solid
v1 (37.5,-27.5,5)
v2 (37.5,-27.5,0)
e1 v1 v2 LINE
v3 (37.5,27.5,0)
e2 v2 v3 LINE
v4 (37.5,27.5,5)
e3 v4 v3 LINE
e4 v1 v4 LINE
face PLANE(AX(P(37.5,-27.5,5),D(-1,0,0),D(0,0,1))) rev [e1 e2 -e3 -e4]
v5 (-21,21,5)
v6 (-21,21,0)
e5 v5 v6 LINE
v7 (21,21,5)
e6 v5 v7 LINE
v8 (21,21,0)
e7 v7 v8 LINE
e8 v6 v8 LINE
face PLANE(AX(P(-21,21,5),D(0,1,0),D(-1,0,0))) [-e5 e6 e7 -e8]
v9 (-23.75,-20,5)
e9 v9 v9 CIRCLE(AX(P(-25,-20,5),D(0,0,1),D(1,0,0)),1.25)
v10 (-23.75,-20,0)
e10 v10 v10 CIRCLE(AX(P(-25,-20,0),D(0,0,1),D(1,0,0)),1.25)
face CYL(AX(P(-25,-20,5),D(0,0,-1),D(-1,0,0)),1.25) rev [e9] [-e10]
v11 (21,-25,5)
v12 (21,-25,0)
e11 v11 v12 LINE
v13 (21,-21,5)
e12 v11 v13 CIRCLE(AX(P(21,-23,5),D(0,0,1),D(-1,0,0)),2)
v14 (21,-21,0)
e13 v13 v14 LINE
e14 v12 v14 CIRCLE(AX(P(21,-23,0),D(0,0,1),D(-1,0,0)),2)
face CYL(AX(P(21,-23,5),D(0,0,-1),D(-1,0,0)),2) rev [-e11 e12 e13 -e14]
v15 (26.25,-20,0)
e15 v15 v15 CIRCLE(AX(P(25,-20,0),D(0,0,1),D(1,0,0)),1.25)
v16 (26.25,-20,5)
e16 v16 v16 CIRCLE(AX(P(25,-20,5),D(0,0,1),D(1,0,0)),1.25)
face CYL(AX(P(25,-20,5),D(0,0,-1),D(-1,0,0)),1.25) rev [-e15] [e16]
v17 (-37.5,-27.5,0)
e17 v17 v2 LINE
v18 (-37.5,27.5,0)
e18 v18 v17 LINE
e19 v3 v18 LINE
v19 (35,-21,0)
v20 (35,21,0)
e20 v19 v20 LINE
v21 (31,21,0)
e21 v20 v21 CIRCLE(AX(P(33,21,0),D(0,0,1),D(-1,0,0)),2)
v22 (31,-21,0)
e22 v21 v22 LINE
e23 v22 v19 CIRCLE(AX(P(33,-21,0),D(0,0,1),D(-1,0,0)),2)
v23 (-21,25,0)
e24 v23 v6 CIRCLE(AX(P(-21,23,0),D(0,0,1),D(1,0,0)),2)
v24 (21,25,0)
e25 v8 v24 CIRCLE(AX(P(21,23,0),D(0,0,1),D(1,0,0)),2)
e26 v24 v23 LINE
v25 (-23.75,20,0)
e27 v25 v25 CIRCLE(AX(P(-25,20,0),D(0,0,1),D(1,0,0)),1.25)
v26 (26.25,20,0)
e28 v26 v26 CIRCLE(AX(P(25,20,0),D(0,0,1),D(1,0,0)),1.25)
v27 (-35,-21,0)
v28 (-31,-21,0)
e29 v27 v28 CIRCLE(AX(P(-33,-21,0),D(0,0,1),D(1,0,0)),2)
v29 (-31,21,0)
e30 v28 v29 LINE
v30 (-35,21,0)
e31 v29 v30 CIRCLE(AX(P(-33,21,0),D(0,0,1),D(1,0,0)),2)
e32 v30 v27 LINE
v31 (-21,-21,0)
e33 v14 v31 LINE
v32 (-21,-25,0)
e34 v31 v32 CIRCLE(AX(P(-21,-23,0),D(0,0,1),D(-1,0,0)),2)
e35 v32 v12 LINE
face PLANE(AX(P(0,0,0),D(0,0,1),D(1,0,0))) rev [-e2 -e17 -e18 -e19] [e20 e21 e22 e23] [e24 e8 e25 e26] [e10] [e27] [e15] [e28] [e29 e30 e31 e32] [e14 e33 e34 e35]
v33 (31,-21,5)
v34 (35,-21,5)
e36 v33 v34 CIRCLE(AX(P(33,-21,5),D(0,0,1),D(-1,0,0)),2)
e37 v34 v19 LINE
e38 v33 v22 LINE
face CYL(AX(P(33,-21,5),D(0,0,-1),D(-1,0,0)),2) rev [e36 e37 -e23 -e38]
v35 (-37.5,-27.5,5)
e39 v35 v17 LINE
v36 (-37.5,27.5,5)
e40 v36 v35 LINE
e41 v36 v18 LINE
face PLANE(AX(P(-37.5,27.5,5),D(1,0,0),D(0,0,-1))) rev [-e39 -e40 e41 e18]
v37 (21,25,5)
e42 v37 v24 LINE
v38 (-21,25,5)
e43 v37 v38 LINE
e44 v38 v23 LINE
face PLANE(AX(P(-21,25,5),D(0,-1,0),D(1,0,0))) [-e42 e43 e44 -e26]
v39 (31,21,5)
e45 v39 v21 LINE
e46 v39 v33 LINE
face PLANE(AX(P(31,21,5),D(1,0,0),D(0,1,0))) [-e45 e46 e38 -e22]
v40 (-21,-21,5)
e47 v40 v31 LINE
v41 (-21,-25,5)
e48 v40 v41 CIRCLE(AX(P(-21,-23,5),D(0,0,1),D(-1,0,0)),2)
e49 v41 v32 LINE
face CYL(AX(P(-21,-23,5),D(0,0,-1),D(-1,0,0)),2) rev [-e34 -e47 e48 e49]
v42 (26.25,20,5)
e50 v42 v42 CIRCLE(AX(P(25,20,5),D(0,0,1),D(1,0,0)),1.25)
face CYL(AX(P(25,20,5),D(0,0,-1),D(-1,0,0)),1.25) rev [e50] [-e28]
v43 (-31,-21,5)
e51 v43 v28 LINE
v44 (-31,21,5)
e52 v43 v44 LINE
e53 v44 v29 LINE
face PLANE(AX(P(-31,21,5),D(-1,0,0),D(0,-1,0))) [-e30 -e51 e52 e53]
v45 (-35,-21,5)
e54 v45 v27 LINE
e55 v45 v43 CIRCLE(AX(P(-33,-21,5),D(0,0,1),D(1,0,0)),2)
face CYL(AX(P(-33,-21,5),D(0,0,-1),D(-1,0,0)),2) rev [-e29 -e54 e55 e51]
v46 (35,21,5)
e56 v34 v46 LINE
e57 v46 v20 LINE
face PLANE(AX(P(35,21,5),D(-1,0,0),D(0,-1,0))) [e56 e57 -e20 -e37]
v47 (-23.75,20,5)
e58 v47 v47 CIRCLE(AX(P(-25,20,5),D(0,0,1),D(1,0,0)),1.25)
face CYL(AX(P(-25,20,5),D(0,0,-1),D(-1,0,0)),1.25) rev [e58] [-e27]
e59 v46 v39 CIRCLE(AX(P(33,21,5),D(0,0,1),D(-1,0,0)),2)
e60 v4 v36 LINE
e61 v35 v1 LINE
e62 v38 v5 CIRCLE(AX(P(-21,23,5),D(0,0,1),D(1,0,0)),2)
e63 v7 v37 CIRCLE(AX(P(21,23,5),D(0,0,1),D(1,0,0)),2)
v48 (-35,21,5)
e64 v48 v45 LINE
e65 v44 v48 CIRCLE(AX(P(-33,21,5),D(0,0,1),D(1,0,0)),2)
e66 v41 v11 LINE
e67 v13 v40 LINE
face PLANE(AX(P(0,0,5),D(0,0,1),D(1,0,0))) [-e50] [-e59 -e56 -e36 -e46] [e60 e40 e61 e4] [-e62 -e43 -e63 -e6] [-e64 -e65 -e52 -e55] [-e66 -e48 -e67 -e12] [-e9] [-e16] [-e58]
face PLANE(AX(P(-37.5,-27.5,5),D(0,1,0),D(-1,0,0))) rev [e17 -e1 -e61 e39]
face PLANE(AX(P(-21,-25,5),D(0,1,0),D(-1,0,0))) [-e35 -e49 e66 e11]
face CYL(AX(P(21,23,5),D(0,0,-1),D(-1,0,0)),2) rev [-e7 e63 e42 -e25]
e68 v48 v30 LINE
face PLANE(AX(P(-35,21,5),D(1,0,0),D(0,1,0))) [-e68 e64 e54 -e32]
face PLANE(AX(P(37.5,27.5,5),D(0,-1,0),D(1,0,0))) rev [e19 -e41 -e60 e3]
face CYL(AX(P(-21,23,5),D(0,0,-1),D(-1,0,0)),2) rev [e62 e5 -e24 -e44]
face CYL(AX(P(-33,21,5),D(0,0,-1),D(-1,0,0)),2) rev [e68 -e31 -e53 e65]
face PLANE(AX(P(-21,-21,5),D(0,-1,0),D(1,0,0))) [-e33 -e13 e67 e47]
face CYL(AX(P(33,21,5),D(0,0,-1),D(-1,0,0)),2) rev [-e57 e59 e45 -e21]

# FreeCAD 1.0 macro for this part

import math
import FreeCAD as App
import Part
import Sketcher
from FreeCAD import Vector

doc = App.newDocument("Part")
body = doc.addObject("PartDesign::Body", "Body")

# Sketch on XY plane
sketch1 = body.newObject("Sketcher::SketchObject", "Sketch")
sketch1.AttachmentSupport = (doc.getObject("XY_Plane"), [""])
sketch1.MapMode = "FlatFace"
sketch1.addGeometry([
    Part.LineSegment(Vector(-37.5, 27.5, 0), Vector(-37.5, -27.5, 0)),  # 0
    Part.LineSegment(Vector(-37.5, -27.5, 0), Vector(37.5, -27.5, 0)),  # 1
    Part.LineSegment(Vector(37.5, -27.5, 0), Vector(37.5, 27.5, 0)),  # 2
    Part.LineSegment(Vector(37.5, 27.5, 0), Vector(-37.5, 27.5, 0)),  # 3
    Part.Circle(Vector(-25, -20, 0), Vector(0, 0, 1), 1.2),  # 4
    Part.LineSegment(Vector(21, -25, 0), Vector(-21, -25, 0)),  # 5
    Part.ArcOfCircle(Part.Circle(Vector(-21, -23, 0), Vector(0, 0, 1), 2), math.radians(90), math.radians(270)),  # 6
    Part.LineSegment(Vector(-21, -21, 0), Vector(21, -21, 0)),  # 7
    Part.ArcOfCircle(Part.Circle(Vector(21, -23, 0), Vector(0, 0, 1), 2), math.radians(-90), math.radians(90)),  # 8
    Part.Circle(Vector(25, -20, 0), Vector(0, 0, 1), 1.2),  # 9
    Part.ArcOfCircle(Part.Circle(Vector(-33, 21, 0), Vector(0, 0, 1), 2), math.radians(0), math.radians(180)),  # 10
    Part.LineSegment(Vector(-31, 21, 0), Vector(-31, -21, 0)),  # 11
    Part.ArcOfCircle(Part.Circle(Vector(-33, -21, 0), Vector(0, 0, 1), 2), math.radians(180), math.radians(360)),  # 12
    Part.LineSegment(Vector(-35, -21, 0), Vector(-35, 21, 0)),  # 13
    Part.Circle(Vector(-25, 20, 0), Vector(0, 0, 1), 1.2),  # 14
    Part.LineSegment(Vector(31, -21, 0), Vector(31, 21, 0)),  # 15
    Part.ArcOfCircle(Part.Circle(Vector(33, 21, 0), Vector(0, 0, 1), 2), math.radians(0), math.radians(180)),  # 16
    Part.LineSegment(Vector(35, 21, 0), Vector(35, -21, 0)),  # 17
    Part.ArcOfCircle(Part.Circle(Vector(33, -21, 0), Vector(0, 0, 1), 2), math.radians(180), math.radians(360)),  # 18
    Part.ArcOfCircle(Part.Circle(Vector(-21, 23, 0), Vector(0, 0, 1), 2), math.radians(90), math.radians(270)),  # 19
    Part.LineSegment(Vector(-21, 25, 0), Vector(21, 25, 0)),  # 20
    Part.ArcOfCircle(Part.Circle(Vector(21, 23, 0), Vector(0, 0, 1), 2), math.radians(-90), math.radians(90)),  # 21
    Part.LineSegment(Vector(21, 21, 0), Vector(-21, 21, 0)),  # 22
    Part.Circle(Vector(25, 20, 0), Vector(0, 0, 1), 1.2),  # 23
], False)
sketch1.addConstraint([
    Sketcher.Constraint("Coincident", 0, 2, 1, 1),
    Sketcher.Constraint("Coincident", 1, 2, 2, 1),
    Sketcher.Constraint("Coincident", 2, 2, 3, 1),
    Sketcher.Constraint("Coincident", 3, 2, 0, 1),
    Sketcher.Constraint("Tangent", 5, 2, 6, 2),
    Sketcher.Constraint("Tangent", 6, 1, 7, 1),
    Sketcher.Constraint("Tangent", 7, 2, 8, 2),
    Sketcher.Constraint("Tangent", 8, 1, 5, 1),
    Sketcher.Constraint("Tangent", 10, 1, 11, 1),
    Sketcher.Constraint("Tangent", 11, 2, 12, 2),
    Sketcher.Constraint("Tangent", 12, 1, 13, 1),
    Sketcher.Constraint("Tangent", 13, 2, 10, 2),
    Sketcher.Constraint("Tangent", 15, 2, 16, 2),
    Sketcher.Constraint("Tangent", 16, 1, 17, 1),
    Sketcher.Constraint("Tangent", 17, 2, 18, 2),
    Sketcher.Constraint("Tangent", 18, 1, 15, 1),
    Sketcher.Constraint("Tangent", 19, 1, 20, 1),
    Sketcher.Constraint("Tangent", 20, 2, 21, 2),
    Sketcher.Constraint("Tangent", 21, 1, 22, 1),
    Sketcher.Constraint("Tangent", 22, 2, 19, 2),
    Sketcher.Constraint("Vertical", 0),
    Sketcher.Constraint("Horizontal", 1),
    Sketcher.Constraint("Vertical", 2),
    Sketcher.Constraint("Horizontal", 3),
    Sketcher.Constraint("Horizontal", 5),
    Sketcher.Constraint("Horizontal", 7),
    Sketcher.Constraint("Vertical", 11),
    Sketcher.Constraint("Vertical", 13),
    Sketcher.Constraint("Vertical", 15),
    Sketcher.Constraint("Vertical", 17),
    Sketcher.Constraint("Horizontal", 20),
    Sketcher.Constraint("Horizontal", 22),
    Sketcher.Constraint("Equal", 4, 9),
    Sketcher.Constraint("Equal", 8, 10),
    Sketcher.Constraint("Equal", 9, 14),
    Sketcher.Constraint("Equal", 12, 16),
    Sketcher.Constraint("Equal", 18, 19),
    Sketcher.Constraint("Equal", 14, 23),
    Sketcher.Constraint("Symmetric", 9, 3, 14, 3, -1, 1),
    Sketcher.Constraint("Symmetric", 12, 3, 16, 3, -1, 1),
    Sketcher.Constraint("Symmetric", 8, 3, 19, 3, -1, 1),
    Sketcher.Constraint("Symmetric", 4, 3, 23, 3, -1, 1),
    Sketcher.Constraint("Symmetric", 0, 2, 2, 2, -1, 1),
    Sketcher.Constraint("Symmetric", 4, 3, 9, 3, -2),
    Sketcher.Constraint("Horizontal", 10, 3, 16, 3),
    Sketcher.Constraint("Horizontal", 12, 3, 18, 3),
    Sketcher.Constraint("Horizontal", 18, 3, 6, 1),
    Sketcher.Constraint("Vertical", 6, 3, 19, 3),
    Sketcher.Constraint("Vertical", 8, 3, 21, 3),
    Sketcher.Constraint("Equal", 22, 11),
    Sketcher.Constraint("Radius", 6, 2.0),
    Sketcher.Constraint("Diameter", 4, 2.5),
    Sketcher.Constraint("DistanceX", 1, 1, 1, 2, 75.0),
    Sketcher.Constraint("DistanceX", 5, 2, 5, 1, 42.0),
    Sketcher.Constraint("DistanceY", 0, 2, 0, 1, 55.0),
    Sketcher.Constraint("DistanceX", 4, 3, -1, 1, 25.0),
    Sketcher.Constraint("DistanceY", 4, 3, -1, 1, 20.0),
    Sketcher.Constraint("DistanceX", 10, 3, -1, 1, 33.0),
])
pad1 = body.newObject("PartDesign::Pad", "Pad")
pad1.Profile = sketch1
pad1.Length = 5

doc.recompute()
